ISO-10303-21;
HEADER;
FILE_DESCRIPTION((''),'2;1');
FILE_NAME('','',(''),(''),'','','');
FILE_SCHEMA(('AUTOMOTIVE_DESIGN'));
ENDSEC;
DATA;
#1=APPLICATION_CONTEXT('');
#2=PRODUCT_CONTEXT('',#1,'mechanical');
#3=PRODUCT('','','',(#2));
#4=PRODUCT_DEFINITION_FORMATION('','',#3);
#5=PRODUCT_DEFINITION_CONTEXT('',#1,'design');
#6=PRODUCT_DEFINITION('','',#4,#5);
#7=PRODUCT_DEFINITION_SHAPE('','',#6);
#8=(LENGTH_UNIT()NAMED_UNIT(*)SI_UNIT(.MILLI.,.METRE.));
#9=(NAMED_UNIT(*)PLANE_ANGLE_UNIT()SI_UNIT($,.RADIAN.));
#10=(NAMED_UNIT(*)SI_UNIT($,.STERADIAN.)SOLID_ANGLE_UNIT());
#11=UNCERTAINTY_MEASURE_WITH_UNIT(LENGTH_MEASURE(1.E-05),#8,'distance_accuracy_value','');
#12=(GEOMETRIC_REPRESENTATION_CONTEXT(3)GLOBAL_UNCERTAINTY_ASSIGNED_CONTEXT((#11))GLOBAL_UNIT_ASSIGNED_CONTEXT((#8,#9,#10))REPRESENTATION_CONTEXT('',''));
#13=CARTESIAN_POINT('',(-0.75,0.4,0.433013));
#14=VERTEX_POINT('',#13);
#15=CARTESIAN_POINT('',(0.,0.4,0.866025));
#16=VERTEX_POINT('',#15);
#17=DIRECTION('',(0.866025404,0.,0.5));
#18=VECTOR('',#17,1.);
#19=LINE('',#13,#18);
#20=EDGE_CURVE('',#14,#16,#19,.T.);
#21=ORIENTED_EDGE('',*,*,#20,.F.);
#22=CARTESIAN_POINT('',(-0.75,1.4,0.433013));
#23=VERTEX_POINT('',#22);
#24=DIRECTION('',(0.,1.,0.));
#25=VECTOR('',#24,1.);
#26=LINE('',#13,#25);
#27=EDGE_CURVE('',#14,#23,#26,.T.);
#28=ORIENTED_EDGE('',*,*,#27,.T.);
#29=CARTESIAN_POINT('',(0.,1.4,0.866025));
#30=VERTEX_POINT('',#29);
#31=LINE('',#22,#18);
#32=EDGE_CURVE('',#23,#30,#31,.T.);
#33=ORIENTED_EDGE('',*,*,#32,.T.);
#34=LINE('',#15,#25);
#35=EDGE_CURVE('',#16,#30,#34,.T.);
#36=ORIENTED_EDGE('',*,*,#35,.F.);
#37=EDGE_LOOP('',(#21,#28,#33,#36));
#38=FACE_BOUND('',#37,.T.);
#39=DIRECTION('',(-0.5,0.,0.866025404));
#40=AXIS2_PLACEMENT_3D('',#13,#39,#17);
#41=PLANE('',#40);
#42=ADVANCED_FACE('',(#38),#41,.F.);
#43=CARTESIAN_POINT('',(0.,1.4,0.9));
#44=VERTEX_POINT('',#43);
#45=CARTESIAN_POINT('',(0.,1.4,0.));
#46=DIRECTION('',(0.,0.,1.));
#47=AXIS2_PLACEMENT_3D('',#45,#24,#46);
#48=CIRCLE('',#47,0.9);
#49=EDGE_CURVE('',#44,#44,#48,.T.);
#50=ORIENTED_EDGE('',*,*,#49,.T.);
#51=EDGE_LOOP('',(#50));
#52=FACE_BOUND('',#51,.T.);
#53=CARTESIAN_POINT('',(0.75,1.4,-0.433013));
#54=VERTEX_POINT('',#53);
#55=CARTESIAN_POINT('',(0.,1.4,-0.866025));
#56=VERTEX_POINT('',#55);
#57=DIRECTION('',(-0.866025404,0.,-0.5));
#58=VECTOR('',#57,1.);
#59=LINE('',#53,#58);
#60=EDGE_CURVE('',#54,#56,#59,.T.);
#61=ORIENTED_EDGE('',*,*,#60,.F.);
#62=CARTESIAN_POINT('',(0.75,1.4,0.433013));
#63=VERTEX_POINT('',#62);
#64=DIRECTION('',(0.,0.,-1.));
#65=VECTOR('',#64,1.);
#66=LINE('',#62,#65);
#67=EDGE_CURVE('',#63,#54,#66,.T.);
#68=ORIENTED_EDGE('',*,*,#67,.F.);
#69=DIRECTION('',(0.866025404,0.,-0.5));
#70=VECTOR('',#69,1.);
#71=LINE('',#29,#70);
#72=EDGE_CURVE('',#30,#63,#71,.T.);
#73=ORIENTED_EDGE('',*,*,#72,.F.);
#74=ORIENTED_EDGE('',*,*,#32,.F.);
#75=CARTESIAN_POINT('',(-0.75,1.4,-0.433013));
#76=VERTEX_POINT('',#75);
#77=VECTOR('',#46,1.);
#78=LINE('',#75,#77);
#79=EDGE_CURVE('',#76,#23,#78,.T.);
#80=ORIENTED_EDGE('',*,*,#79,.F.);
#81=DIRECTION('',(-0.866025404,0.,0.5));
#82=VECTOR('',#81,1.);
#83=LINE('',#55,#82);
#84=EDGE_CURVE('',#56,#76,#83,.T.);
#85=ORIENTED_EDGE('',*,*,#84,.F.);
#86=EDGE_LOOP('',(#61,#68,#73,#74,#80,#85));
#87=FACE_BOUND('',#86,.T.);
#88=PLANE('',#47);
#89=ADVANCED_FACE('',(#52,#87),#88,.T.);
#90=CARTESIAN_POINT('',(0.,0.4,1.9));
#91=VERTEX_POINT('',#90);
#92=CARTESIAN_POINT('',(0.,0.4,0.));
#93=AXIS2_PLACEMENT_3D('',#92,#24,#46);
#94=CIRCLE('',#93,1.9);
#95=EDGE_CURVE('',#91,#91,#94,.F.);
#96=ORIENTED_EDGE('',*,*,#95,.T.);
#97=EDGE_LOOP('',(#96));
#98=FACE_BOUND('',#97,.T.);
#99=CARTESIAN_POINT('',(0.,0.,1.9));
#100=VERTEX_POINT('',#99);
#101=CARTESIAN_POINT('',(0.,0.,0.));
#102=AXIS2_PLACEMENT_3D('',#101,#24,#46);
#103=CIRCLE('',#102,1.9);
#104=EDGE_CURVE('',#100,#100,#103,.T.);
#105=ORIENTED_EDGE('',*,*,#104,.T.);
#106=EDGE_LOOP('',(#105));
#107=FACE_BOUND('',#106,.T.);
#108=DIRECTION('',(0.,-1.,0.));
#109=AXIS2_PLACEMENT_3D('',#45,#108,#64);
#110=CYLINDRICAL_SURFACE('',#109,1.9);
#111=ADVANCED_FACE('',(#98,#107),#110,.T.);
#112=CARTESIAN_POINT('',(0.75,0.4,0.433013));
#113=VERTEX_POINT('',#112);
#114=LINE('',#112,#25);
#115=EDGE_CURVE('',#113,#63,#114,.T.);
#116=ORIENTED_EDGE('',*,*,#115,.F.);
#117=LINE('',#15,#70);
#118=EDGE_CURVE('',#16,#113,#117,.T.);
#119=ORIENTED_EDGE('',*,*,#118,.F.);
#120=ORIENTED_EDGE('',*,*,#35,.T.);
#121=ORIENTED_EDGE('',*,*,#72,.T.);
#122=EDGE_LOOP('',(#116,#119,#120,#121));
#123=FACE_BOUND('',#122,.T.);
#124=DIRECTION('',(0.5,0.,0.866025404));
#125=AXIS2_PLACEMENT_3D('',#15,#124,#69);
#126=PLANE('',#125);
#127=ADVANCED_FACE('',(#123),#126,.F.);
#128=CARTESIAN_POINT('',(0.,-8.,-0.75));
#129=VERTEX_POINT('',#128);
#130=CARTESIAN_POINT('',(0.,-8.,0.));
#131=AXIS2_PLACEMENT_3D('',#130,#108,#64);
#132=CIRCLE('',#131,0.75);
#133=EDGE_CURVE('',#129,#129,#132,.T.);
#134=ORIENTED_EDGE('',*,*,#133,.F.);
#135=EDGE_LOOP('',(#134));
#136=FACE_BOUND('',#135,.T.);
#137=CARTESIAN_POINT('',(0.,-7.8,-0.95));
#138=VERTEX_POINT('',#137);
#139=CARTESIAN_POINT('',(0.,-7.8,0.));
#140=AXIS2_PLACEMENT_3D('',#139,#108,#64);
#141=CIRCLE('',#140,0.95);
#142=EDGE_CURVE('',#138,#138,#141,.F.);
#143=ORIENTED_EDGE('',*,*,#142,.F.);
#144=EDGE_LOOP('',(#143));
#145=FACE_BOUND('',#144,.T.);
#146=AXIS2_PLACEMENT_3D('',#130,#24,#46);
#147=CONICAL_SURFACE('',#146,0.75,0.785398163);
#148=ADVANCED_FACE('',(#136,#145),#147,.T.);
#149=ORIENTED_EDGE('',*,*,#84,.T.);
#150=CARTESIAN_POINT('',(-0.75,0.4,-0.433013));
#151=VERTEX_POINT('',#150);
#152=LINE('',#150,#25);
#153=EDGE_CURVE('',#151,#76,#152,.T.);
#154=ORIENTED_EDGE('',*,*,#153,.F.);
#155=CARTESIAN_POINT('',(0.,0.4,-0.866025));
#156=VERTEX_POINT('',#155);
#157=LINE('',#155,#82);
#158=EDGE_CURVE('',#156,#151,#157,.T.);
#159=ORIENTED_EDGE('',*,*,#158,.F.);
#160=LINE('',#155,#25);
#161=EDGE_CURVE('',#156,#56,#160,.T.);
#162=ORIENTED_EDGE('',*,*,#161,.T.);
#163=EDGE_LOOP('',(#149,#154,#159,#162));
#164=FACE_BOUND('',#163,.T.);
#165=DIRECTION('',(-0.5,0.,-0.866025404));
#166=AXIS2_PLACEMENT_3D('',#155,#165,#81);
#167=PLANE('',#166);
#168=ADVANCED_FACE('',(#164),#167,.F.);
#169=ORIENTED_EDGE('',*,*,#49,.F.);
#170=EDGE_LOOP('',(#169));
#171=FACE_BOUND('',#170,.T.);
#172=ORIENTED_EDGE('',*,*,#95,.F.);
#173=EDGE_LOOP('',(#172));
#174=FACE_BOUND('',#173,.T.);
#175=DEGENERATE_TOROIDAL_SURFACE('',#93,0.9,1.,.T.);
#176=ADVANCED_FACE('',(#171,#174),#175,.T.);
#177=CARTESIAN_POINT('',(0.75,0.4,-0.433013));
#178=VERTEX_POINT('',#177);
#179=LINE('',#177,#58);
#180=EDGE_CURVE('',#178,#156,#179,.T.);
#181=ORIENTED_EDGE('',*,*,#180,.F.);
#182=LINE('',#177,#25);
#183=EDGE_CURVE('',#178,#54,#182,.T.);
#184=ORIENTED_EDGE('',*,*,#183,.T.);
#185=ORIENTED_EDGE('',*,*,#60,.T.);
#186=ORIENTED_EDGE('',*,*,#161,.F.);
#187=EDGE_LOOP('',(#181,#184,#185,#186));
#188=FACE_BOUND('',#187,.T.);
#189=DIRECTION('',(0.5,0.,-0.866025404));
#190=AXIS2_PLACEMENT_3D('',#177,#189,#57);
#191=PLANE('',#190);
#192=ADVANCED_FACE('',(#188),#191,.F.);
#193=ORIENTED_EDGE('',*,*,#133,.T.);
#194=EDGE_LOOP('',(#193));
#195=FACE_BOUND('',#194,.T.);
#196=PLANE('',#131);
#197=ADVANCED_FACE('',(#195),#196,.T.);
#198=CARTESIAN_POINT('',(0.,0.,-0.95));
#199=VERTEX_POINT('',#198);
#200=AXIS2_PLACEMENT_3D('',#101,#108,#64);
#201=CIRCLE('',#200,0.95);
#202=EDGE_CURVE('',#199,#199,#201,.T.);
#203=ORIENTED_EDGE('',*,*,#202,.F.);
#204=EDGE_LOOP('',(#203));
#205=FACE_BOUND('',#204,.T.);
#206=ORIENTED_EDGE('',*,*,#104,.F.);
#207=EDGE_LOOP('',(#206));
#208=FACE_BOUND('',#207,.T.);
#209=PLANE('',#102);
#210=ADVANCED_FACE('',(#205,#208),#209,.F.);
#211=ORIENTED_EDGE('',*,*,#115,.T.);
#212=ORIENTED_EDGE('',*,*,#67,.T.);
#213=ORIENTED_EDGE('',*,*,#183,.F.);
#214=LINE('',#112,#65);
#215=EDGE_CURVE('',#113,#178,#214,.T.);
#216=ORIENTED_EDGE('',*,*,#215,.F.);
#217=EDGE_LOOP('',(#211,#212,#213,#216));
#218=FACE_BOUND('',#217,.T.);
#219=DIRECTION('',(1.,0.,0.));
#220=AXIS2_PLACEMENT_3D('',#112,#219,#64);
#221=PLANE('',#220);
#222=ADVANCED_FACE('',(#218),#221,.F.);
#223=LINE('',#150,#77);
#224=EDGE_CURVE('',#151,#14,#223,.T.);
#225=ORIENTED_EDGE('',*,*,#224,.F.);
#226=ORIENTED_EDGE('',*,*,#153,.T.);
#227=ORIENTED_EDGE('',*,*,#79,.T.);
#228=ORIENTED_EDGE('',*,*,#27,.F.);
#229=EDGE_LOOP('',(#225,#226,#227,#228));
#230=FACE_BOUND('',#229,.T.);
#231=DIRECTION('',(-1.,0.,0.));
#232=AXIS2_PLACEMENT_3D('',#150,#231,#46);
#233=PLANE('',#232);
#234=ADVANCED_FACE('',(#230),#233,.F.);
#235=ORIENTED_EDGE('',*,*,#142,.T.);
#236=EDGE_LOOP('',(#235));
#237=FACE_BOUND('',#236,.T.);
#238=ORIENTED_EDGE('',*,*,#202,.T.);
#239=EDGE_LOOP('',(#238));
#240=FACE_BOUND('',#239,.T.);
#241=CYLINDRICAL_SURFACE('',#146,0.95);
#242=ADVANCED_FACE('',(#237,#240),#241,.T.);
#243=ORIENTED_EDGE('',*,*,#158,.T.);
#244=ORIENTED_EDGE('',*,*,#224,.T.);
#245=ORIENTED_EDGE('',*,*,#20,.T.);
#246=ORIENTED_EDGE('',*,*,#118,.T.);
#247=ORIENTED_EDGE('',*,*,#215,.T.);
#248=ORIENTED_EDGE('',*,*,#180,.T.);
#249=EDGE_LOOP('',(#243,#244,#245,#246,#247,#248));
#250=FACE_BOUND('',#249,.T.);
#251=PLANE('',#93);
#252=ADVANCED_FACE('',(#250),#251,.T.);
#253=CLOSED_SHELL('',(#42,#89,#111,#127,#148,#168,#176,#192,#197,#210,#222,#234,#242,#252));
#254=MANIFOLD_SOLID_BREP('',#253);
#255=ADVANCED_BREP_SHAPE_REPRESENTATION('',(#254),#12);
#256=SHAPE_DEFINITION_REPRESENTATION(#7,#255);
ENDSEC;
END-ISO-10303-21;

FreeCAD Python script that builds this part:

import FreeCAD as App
import Part
import Sketcher

V = App.Vector
Q = App.Units.Quantity


def edges_at(feature, points):
    """Names of the edges that pass closest to the given points."""
    edges = feature.Shape.Edges
    near = lambda p: min(range(len(edges)), key=lambda i: edges[i].distToShape(Part.Vertex(*p))[0])
    return sorted({f"Edge{near(p) + 1}" for p in points})


def add_polygon(sketch, points):
    """Adds a closed chain of lines whose ends are joined by coincident constraints."""
    first, n = sketch.GeometryCount, len(points)
    for a, b in zip(points, points[1:] + points[:1]):
        sketch.addGeometry(Part.LineSegment(App.Vector(*a, 0), App.Vector(*b, 0)), False)
    for i in range(n):
        sketch.addConstraint(Sketcher.Constraint("Coincident", first + i, 2, first + (i + 1) % n, 1))

doc = App.newDocument("Part")
body = doc.addObject("PartDesign::Body", "Body")

sketch1 = body.newObject("Sketcher::SketchObject", "Sketch")
sketch1.AttachmentSupport = (doc.getObject("XZ_Plane"), [""])
sketch1.MapMode = "FlatFace"
sketch1.addGeometry(Part.Circle(V(0, 0, 0), V(0, 0, 1), 1.9), False)
sketch1.addConstraint([
    Sketcher.Constraint("Coincident", 0, 3, -1, 1),
    Sketcher.Constraint("Diameter", 0, 3.8),
])
pad1 = body.newObject("PartDesign::Pad", "Pad")
pad1.Profile = sketch1
pad1.Length = 1.4
pad1.Reversed = True

sketch2 = body.newObject("Sketcher::SketchObject", "Sketch001")
sketch2.AttachmentSupport = (doc.getObject("XZ_Plane"), [""])
sketch2.MapMode = "FlatFace"
sketch2.AttachmentOffset = App.Placement(V(0, 0, -1.4), App.Rotation())
add_polygon(sketch2, [(0, 0.9), (0.8, 0.4), (0.8, -0.4), (0, -0.9), (-0.8, -0.4), (-0.8, 0.4)])
sketch2.addConstraint([
    Sketcher.Constraint("Vertical", 1),
    Sketcher.Constraint("Vertical", 4),
    Sketcher.Constraint("Symmetric", 0, 2, 3, 2, -1, 1),
    Sketcher.Constraint("Symmetric", 2, 2, 5, 2, -1, 1),
    Sketcher.Constraint("PointOnObject", 2, 2, -2),
    Sketcher.Constraint("Parallel", 2, 5),
    Sketcher.Constraint("Horizontal", 1, 2, 3, 2),
    Sketcher.Constraint("Angle", 0, Q("-30 deg")),
    Sketcher.Constraint("DistanceX", 3, 2, 1, 2, 1.5),
    Sketcher.Constraint("DistanceY", 1, 2, 1, 1, 0.866025),
])
pocket1 = body.newObject("PartDesign::Pocket", "Pocket")
pocket1.Profile = sketch2
pocket1.Length = 1
pocket1.Reversed = True
doc.recompute()

fillet = body.newObject("PartDesign::Fillet", "Fillet")
fillet.Base = (pocket1, edges_at(pocket1, [(-1.9, 1.4, 0)]))
fillet.Radius = 1

sketch3 = body.newObject("Sketcher::SketchObject", "Sketch002")
sketch3.AttachmentSupport = (doc.getObject("XZ_Plane"), [""])
sketch3.MapMode = "FlatFace"
sketch3.addGeometry(Part.Circle(V(0, 0, 0), V(0, 0, 1), 0.9), False)
sketch3.addConstraint([
    Sketcher.Constraint("Coincident", 0, 3, -1, 1),
    Sketcher.Constraint("Diameter", 0, 1.9),
])
pad2 = body.newObject("PartDesign::Pad", "Pad001")
pad2.Profile = sketch3
pad2.Length = 8
doc.recompute()

chamfer = body.newObject("PartDesign::Chamfer", "Chamfer")
chamfer.Base = (pad2, edges_at(pad2, [(-0.95, -8, 0)]))
chamfer.Size = 0.2

doc.recompute()
